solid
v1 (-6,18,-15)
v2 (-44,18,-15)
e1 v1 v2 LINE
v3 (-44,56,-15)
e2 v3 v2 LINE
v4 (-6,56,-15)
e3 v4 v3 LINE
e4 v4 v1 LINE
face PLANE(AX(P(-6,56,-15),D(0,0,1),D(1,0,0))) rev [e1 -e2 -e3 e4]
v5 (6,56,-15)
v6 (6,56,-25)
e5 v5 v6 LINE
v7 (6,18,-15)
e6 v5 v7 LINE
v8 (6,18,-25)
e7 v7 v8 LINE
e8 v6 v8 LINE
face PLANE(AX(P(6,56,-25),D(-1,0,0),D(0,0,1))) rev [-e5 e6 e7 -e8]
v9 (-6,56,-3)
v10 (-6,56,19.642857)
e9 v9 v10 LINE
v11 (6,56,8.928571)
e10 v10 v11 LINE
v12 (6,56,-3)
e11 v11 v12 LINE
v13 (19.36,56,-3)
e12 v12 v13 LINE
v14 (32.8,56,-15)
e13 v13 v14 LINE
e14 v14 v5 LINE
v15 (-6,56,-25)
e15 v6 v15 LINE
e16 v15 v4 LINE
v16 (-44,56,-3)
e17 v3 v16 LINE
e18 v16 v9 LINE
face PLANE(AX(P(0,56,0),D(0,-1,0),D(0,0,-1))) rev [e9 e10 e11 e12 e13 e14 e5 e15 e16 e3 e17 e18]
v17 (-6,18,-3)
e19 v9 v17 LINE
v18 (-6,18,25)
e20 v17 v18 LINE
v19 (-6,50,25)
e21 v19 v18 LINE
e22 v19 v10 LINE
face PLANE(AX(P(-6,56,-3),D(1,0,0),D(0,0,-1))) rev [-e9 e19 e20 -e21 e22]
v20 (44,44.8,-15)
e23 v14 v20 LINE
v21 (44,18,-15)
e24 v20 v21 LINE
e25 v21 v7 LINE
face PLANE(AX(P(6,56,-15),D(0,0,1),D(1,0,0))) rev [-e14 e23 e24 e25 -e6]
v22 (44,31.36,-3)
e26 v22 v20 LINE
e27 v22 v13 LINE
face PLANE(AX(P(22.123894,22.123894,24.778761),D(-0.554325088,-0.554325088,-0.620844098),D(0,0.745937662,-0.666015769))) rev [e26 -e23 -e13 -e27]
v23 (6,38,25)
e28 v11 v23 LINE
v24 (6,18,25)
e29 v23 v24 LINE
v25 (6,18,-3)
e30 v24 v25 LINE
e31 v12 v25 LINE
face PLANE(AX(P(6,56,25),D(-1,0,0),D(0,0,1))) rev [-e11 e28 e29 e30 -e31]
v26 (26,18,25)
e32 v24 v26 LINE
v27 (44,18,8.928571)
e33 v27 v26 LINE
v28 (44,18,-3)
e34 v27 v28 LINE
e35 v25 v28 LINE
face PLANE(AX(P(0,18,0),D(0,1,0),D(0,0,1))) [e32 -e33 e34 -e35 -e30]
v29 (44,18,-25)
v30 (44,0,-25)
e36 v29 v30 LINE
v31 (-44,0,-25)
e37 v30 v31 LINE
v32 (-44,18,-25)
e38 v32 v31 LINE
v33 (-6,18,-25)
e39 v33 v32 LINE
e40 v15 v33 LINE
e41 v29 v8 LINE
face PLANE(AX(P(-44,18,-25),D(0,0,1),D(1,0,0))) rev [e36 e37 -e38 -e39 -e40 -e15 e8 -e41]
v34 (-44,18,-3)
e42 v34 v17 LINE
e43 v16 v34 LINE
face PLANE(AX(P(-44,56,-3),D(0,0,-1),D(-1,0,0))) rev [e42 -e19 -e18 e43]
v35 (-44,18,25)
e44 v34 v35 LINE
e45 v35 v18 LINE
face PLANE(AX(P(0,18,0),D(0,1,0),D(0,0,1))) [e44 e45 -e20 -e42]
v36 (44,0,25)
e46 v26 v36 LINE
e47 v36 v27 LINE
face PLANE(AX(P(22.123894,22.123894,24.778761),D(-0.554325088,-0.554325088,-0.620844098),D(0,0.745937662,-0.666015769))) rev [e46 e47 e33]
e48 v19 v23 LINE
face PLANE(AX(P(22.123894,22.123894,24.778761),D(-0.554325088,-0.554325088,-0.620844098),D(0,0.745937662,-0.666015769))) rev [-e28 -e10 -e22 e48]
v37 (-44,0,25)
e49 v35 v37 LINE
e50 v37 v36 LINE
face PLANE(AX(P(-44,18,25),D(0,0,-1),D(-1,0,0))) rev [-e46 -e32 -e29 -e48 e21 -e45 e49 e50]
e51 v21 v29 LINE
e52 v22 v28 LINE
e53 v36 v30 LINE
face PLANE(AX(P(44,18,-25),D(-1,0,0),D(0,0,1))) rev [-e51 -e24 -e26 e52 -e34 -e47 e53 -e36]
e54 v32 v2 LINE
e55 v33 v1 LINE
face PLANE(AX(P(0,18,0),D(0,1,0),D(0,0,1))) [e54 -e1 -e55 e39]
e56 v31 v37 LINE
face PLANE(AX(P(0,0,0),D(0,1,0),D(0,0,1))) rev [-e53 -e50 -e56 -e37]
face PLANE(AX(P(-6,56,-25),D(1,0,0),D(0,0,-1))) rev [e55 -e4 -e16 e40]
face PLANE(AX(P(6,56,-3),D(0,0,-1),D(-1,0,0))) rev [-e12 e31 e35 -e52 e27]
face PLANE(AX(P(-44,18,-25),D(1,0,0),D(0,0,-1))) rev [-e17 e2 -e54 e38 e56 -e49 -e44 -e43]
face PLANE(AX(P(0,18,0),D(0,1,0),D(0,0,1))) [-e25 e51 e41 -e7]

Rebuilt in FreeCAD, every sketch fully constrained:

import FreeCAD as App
import Part
import Sketcher

V = App.Vector
Q = App.Units.Quantity


def add_polygon(sketch, points):
    """Adds a closed chain of lines whose ends are joined by coincident constraints."""
    first, n = sketch.GeometryCount, len(points)
    for a, b in zip(points, points[1:] + points[:1]):
        sketch.addGeometry(Part.LineSegment(App.Vector(*a, 0), App.Vector(*b, 0)), False)
    for i in range(n):
        sketch.addConstraint(Sketcher.Constraint("Coincident", first + i, 2, first + (i + 1) % n, 1))

doc = App.newDocument("Part")
params = doc.addObject("Spreadsheet::Sheet", "Params")
for row, (alias, value) in enumerate([
    ("sketch1_width", "88 mm"),
    ("sketch1_height", "50 mm"),
    ("pad1_length", "18 mm"),
    ("sketch2_width", "38 mm"),
    ("sketch2_width2", "12 mm"),
    ("sketch2_height", "10 mm"),
    ("sketch2_height2", "28 mm"),
    ("pad2_length", "38 mm"),
    ("pocket1_length", "38 mm"),
], start=1):
    params.set(f"A{row}", alias)
    params.set(f"B{row}", "=" + value)
    params.setAlias(f"B{row}", alias)

body = doc.addObject("PartDesign::Body", "Body")

sketch1 = doc.addObject("Sketcher::SketchObject", "Sketch")
body.addObject(sketch1)
sketch1.AttachmentSupport = (doc.XZ_Plane, [""])
sketch1.MapMode = "FlatFace"
add_polygon(sketch1, [(-44, -25), (-44, 25), (44, 25), (44, -25)])
sketch1.addConstraint(Sketcher.Constraint("Vertical", 0))
sketch1.addConstraint(Sketcher.Constraint("Horizontal", 1))
sketch1.addConstraint(Sketcher.Constraint("Vertical", 2))
sketch1.addConstraint(Sketcher.Constraint("Horizontal", 3))
sketch1.addConstraint(Sketcher.Constraint("Symmetric", 0, 2, 2, 2, -1, 1))
sketch1.addConstraint(Sketcher.Constraint("DistanceX", 1, 1, 1, 2, Q("88 mm")))
sketch1.addConstraint(Sketcher.Constraint("DistanceY", 0, 1, 0, 2, Q("50 mm")))
sketch1.setExpression("Constraints[9]", "Params.sketch1_width")
sketch1.setExpression("Constraints[10]", "Params.sketch1_height")
pad1 = doc.addObject("PartDesign::Pad", "Pad")
body.addObject(pad1)
pad1.Profile = sketch1
pad1.setExpression("Length", "Params.pad1_length")
pad1.Reversed = True

sketch2 = doc.addObject("Sketcher::SketchObject", "Sketch001")
body.addObject(sketch2)
sketch2.AttachmentSupport = (doc.XZ_Plane, [""])
sketch2.MapMode = "FlatFace"
sketch2.AttachmentOffset = App.Placement(V(0, 0, -18), App.Rotation())
add_polygon(sketch2, [(-6, -25), (-6, -15), (-44, -15), (-44, -3), (-6, -3), (-6, 25), (6, 25), (6, -3), (44, -3), (44, -15), (6, -15), (6, -25)])
sketch2.addConstraint(Sketcher.Constraint("Vertical", 0))
sketch2.addConstraint(Sketcher.Constraint("Horizontal", 1))
sketch2.addConstraint(Sketcher.Constraint("Vertical", 2))
sketch2.addConstraint(Sketcher.Constraint("Horizontal", 3))
sketch2.addConstraint(Sketcher.Constraint("Vertical", 4))
sketch2.addConstraint(Sketcher.Constraint("Horizontal", 5))
sketch2.addConstraint(Sketcher.Constraint("Vertical", 6))
sketch2.addConstraint(Sketcher.Constraint("Horizontal", 7))
sketch2.addConstraint(Sketcher.Constraint("Vertical", 8))
sketch2.addConstraint(Sketcher.Constraint("Horizontal", 9))
sketch2.addConstraint(Sketcher.Constraint("Vertical", 10))
sketch2.addConstraint(Sketcher.Constraint("Horizontal", 11))
sketch2.addConstraint(Sketcher.Constraint("Symmetric", 4, 2, 10, 2, -1, 1))
sketch2.addConstraint(Sketcher.Constraint("Symmetric", 3, 2, 6, 2, -2))
sketch2.addConstraint(Sketcher.Constraint("Symmetric", 1, 2, 8, 2, -2))
sketch2.addConstraint(Sketcher.Constraint("Vertical", 0, 2, 3, 2))
sketch2.addConstraint(Sketcher.Constraint("Equal", 11, 2))
sketch2.addConstraint(Sketcher.Constraint("DistanceX", 1, 2, 1, 1, Q("38 mm")))
sketch2.addConstraint(Sketcher.Constraint("DistanceX", 5, 1, 5, 2, Q("12 mm")))
sketch2.addConstraint(Sketcher.Constraint("DistanceY", 0, 1, 0, 2, Q("10 mm")))
sketch2.addConstraint(Sketcher.Constraint("DistanceY", 4, 1, 4, 2, Q("28 mm")))
sketch2.setExpression("Constraints[29]", "Params.sketch2_width")
sketch2.setExpression("Constraints[30]", "Params.sketch2_width2")
sketch2.setExpression("Constraints[31]", "Params.sketch2_height")
sketch2.setExpression("Constraints[32]", "Params.sketch2_height2")
pad2 = doc.addObject("PartDesign::Pad", "Pad001")
body.addObject(pad2)
pad2.Profile = sketch2
pad2.setExpression("Length", "Params.pad2_length")
pad2.Reversed = True

sketch3 = doc.addObject("Sketcher::SketchObject", "Sketch002")
body.addObject(sketch3)
sketch3.Placement = App.Placement(V(22.123894, 22.123894, 24.778761), App.Rotation(V(0.832300244, -0.36918925, -0.41349196), V(0, 0.745937661, -0.666015769), V(0.554325088, 0.554325088, 0.620844098), "ZXY"))
add_polygon(sketch3, [(-41, 25), (26, -17), (26, 58)])
sketch3.addConstraint(Sketcher.Constraint("Vertical", 1))
sketch3.addConstraint(Sketcher.Constraint("DistanceX", 2, 2, -1, 1, Q("40.9995 mm")))
sketch3.addConstraint(Sketcher.Constraint("Distance", 0, Q("79.195959 mm")))
sketch3.addConstraint(Sketcher.Constraint("DistanceY", 1, 1, 1, 2, Q("75.073298 mm")))
sketch3.addConstraint(Sketcher.Constraint("DistanceX", -1, 1, 0, 2, Q("26.283912 mm")))
sketch3.addConstraint(Sketcher.Constraint("DistanceY", 0, 2, -1, 1, Q("16.650394 mm")))
pocket1 = doc.addObject("PartDesign::Pocket", "Pocket")
body.addObject(pocket1)
pocket1.Profile = sketch3
pocket1.setExpression("Length", "Params.pocket1_length")
pocket1.Reversed = True

doc.recompute()
